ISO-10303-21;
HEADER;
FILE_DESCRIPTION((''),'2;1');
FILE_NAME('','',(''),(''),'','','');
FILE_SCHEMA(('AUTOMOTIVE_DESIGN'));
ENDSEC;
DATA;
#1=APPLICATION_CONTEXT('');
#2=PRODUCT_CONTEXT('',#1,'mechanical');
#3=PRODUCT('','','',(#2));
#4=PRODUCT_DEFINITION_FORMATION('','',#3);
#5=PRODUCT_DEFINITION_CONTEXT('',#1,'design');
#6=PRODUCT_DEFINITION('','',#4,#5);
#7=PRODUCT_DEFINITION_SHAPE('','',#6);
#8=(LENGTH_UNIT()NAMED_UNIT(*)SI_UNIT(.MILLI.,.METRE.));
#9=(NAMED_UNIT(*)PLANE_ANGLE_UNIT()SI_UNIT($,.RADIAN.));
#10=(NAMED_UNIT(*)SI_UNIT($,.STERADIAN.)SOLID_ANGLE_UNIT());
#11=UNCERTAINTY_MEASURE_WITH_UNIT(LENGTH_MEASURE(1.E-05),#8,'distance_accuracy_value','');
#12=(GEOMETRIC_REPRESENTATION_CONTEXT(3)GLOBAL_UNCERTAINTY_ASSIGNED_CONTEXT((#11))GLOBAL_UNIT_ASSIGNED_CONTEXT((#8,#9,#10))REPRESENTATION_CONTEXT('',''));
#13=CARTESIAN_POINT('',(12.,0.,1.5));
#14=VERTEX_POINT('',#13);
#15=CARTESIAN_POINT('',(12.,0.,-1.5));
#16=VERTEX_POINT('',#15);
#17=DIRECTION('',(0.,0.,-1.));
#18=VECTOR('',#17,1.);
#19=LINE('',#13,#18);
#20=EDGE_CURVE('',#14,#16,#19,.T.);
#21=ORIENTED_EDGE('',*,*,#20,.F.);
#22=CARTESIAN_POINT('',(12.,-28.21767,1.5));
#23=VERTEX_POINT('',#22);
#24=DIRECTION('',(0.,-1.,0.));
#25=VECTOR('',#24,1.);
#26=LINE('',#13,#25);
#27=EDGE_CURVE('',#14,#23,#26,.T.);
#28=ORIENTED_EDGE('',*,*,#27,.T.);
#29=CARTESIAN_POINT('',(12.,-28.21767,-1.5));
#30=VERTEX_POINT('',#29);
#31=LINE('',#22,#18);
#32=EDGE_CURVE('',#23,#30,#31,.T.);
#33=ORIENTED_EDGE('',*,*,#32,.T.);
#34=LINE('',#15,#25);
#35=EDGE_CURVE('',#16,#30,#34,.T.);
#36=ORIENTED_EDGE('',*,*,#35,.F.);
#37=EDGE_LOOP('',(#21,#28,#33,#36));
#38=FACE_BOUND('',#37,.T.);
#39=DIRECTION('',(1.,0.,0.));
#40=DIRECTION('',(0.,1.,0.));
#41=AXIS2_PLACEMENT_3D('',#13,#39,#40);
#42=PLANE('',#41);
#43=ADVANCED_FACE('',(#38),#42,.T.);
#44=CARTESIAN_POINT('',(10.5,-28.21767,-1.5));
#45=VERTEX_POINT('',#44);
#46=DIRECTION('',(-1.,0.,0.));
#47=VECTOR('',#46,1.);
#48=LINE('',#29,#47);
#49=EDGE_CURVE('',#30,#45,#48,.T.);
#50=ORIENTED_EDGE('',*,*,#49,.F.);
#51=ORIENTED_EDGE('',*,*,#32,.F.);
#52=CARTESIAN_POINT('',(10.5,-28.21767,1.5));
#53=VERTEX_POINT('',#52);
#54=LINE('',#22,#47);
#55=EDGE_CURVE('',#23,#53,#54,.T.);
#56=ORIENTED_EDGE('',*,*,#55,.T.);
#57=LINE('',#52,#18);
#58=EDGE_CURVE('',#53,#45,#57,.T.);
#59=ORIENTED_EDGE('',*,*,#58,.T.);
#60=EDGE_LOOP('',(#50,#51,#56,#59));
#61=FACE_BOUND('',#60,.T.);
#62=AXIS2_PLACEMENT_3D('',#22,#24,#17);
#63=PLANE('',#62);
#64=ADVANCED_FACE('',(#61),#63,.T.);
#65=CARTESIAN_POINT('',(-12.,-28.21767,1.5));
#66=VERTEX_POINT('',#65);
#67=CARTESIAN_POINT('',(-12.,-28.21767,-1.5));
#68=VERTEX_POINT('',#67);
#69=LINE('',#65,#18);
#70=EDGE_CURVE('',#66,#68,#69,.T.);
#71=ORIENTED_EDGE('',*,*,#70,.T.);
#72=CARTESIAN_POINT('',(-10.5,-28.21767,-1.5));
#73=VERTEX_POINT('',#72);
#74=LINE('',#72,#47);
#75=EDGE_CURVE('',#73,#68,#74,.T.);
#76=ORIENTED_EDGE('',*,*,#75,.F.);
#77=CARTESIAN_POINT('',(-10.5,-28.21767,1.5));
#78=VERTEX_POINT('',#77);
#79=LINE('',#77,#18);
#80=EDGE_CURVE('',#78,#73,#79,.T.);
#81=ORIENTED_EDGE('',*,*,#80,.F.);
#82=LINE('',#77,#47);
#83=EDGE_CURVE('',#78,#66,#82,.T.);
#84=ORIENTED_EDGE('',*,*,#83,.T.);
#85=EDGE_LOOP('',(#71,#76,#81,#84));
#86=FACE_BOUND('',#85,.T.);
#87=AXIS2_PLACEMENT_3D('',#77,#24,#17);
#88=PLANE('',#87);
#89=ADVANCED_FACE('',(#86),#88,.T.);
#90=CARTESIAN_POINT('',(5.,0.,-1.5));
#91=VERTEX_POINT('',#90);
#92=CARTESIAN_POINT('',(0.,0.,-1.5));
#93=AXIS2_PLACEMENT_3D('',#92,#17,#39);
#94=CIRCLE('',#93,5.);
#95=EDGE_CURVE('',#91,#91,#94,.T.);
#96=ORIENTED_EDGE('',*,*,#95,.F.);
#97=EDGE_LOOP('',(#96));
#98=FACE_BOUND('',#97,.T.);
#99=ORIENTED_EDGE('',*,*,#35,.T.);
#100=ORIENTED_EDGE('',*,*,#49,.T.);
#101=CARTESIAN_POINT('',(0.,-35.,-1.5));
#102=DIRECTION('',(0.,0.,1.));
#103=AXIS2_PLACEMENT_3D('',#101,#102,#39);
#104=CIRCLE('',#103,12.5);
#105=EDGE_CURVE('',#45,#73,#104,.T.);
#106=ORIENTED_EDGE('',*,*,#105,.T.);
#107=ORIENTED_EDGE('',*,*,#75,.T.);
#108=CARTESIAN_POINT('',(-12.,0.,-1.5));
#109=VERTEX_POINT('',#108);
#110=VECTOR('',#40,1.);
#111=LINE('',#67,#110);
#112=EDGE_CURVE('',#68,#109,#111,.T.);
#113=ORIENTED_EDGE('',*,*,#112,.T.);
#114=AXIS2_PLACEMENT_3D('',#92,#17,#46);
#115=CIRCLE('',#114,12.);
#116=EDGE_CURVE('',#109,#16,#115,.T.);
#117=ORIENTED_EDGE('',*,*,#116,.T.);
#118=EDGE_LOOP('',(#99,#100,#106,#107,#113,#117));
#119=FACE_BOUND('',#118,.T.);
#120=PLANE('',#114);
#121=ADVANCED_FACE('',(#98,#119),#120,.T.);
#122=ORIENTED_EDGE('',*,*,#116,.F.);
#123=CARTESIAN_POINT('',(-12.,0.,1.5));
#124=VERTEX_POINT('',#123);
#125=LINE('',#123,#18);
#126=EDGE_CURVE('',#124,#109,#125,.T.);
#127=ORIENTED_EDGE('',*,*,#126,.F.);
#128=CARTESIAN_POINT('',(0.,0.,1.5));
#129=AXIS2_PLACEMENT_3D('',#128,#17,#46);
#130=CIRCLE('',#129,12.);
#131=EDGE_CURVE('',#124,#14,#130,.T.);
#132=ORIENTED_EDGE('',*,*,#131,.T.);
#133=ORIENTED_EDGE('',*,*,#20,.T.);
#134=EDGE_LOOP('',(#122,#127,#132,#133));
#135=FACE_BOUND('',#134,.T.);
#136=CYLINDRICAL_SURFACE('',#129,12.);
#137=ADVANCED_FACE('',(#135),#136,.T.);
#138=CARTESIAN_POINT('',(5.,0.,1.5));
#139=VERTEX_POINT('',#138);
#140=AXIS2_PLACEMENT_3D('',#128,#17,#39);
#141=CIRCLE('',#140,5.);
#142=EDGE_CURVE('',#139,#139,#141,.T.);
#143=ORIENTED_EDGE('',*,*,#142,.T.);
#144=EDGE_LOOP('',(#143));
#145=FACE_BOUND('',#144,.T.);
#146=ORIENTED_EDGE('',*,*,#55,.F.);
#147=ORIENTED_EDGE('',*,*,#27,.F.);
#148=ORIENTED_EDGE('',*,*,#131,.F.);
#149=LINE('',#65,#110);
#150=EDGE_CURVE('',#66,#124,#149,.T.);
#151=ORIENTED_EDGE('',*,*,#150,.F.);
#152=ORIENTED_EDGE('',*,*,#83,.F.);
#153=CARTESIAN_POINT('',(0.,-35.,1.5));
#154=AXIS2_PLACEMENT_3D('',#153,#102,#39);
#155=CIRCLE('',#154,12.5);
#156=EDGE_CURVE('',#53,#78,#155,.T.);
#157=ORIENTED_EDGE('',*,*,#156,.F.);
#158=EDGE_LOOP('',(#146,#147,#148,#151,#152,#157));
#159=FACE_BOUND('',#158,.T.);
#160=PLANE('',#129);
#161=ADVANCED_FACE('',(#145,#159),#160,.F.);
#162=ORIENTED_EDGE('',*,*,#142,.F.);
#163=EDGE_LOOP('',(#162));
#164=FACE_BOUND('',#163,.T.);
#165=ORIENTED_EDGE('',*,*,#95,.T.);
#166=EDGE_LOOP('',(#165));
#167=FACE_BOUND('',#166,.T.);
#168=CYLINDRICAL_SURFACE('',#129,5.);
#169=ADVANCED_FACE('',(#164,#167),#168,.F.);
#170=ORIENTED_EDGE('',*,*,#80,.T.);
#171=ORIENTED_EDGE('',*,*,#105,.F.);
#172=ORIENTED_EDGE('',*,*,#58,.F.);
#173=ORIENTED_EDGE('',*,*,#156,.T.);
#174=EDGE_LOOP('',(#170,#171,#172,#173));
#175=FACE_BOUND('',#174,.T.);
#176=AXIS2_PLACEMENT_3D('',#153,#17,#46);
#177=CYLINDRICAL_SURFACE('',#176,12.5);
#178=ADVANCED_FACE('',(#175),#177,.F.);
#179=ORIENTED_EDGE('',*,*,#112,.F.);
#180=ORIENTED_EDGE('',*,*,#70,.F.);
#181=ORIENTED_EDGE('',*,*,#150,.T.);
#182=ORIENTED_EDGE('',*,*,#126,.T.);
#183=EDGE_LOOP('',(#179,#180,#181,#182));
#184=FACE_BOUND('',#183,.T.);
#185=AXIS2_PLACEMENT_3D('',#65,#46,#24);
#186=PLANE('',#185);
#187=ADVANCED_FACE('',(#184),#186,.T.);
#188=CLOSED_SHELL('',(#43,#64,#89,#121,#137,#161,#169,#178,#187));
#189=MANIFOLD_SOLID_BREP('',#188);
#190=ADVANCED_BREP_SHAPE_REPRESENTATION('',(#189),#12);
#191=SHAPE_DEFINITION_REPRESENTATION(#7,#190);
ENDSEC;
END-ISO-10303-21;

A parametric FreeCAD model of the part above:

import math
import FreeCAD as App
import Part
import Sketcher

doc = App.newDocument("Part")
body = doc.addObject("PartDesign::Body", "Body")

# Sketch on XY plane
sketch1 = body.newObject("Sketcher::SketchObject", "Sketch")
sketch1.AttachmentSupport = (doc.getObject("XY_Plane"), [""])
sketch1.MapMode = "FlatFace"
sketch1.AttachmentOffset = App.Placement(App.Vector(0, 0, -1.5), App.Rotation())
sketch1.addGeometry([
    Part.LineSegment(App.Vector(12, 0, 0), App.Vector(12, -28.21767, 0)),  # 0
    Part.LineSegment(App.Vector(12, -28.21767, 0), App.Vector(10.5, -28.21767, 0)),  # 1
    Part.ArcOfCircle(Part.Circle(App.Vector(0, -35, 0), App.Vector(0, 0, 1), 12.5), math.radians(32.85988), math.radians(147.14012)),  # 2
    Part.LineSegment(App.Vector(-10.5, -28.21767, 0), App.Vector(-12, -28.21767, 0)),  # 3
    Part.LineSegment(App.Vector(-12, -28.21767, 0), App.Vector(-12, 0, 0)),  # 4
    Part.ArcOfCircle(Part.Circle(App.Vector(0, 0, 0), App.Vector(0, 0, 1), 12), math.radians(0), math.radians(180)),  # 5
    Part.Circle(App.Vector(0, 0, 0), App.Vector(0, 0, 1), 5),  # 6
], False)
sketch1.addConstraint([
    Sketcher.Constraint("Coincident", 0, 2, 1, 1),
    Sketcher.Constraint("Coincident", 1, 2, 2, 1),
    Sketcher.Constraint("Coincident", 2, 2, 3, 1),
    Sketcher.Constraint("Coincident", 3, 2, 4, 1),
    Sketcher.Constraint("Tangent", 4, 2, 5, 2),
    Sketcher.Constraint("Tangent", 5, 1, 0, 1),
    Sketcher.Constraint("Vertical", 0),
    Sketcher.Constraint("Horizontal", 1),
    Sketcher.Constraint("Horizontal", 3),
    Sketcher.Constraint("Vertical", 4),
    Sketcher.Constraint("Coincident", 5, 3, -1, 1),
    Sketcher.Constraint("Coincident", 6, 3, -1, 1),
    Sketcher.Constraint("Symmetric", 1, 2, 2, 2, -2),
    Sketcher.Constraint("Diameter", 6, 10.0),
    Sketcher.Constraint("Radius", 5, 12.0),
    Sketcher.Constraint("Radius", 2, 12.5),
    Sketcher.Constraint("DistanceX", 1, 2, 1, 1, 1.5),
    Sketcher.Constraint("DistanceY", 2, 3, -1, 1, 35.0),
])
pad1 = body.newObject("PartDesign::Pad", "Pad")
pad1.Profile = sketch1
pad1.Length = 3

doc.recompute()
